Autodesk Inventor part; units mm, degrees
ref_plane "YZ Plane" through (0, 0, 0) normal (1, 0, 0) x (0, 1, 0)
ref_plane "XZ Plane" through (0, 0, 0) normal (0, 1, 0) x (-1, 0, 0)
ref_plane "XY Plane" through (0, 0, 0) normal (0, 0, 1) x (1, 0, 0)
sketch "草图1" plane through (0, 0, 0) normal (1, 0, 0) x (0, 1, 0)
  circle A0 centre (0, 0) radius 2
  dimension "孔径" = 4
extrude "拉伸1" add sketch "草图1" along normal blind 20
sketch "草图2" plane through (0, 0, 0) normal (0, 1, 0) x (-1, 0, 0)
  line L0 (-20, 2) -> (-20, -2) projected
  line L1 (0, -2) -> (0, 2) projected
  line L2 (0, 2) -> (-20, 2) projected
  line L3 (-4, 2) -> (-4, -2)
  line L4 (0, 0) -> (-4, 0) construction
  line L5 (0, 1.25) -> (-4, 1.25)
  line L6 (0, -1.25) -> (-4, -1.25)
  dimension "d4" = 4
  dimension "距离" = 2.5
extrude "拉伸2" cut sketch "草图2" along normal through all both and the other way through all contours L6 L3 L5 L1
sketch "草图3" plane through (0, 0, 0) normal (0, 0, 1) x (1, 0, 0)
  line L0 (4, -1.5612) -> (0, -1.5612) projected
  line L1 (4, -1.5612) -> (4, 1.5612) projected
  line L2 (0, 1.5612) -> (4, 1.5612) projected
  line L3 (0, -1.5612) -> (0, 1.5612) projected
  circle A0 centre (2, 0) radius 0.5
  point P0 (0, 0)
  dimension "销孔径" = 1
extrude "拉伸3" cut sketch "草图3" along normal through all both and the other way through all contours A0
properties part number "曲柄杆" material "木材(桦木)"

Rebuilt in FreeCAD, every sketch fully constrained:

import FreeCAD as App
import Part
import Sketcher

V = App.Vector
Q = App.Units.Quantity

doc = App.newDocument("Part")
body = doc.addObject("PartDesign::Body", "Body")

sketch1 = body.newObject("Sketcher::SketchObject", "Sketch")
sketch1.AttachmentSupport = (doc.getObject("YZ_Plane"), [""])
sketch1.MapMode = "FlatFace"
sketch1.addGeometry(Part.Circle(V(0, 0, 0), V(0, 0, 1), 2), False)
sketch1.addConstraint(Sketcher.Constraint("Coincident", 0, 3, -1, 1))
sketch1.addConstraint(Sketcher.Constraint("Diameter", 0, Q("4 mm")))
pad1 = body.newObject("PartDesign::Pad", "Pad")
pad1.Profile = sketch1
pad1.Length = 20

sketch2 = body.newObject("Sketcher::SketchObject", "Sketch001")
sketch2.AttachmentSupport = (doc.getObject("XZ_Plane"), [""])
sketch2.MapMode = "FlatFace"
sketch2.addGeometry(Part.LineSegment(V(4, -1.2, 0), V(0, -1.2, 0)), False)
sketch2.addGeometry(Part.LineSegment(V(0, -1.2, 0), V(0, 1.2, 0)), False)
sketch2.addGeometry(Part.LineSegment(V(0, 1.2, 0), V(4, 1.2, 0)), False)
sketch2.addGeometry(Part.LineSegment(V(4, 1.2, 0), V(4, -1.2, 0)), False)
sketch2.addConstraint(Sketcher.Constraint("Coincident", 0, 2, 1, 1))
sketch2.addConstraint(Sketcher.Constraint("Coincident", 1, 2, 2, 1))
sketch2.addConstraint(Sketcher.Constraint("Coincident", 2, 2, 3, 1))
sketch2.addConstraint(Sketcher.Constraint("Coincident", 3, 2, 0, 1))
sketch2.addConstraint(Sketcher.Constraint("Horizontal", 0))
sketch2.addConstraint(Sketcher.Constraint("Vertical", 1))
sketch2.addConstraint(Sketcher.Constraint("Horizontal", 2))
sketch2.addConstraint(Sketcher.Constraint("Vertical", 3))
sketch2.addConstraint(Sketcher.Constraint("Symmetric", 0, 2, 1, 2, -1, 1))
sketch2.addConstraint(Sketcher.Constraint("DistanceX", 0, 2, 0, 1, Q("4 mm")))
sketch2.addConstraint(Sketcher.Constraint("DistanceY", 1, 1, 1, 2, Q("2.5 mm")))
pocket1 = body.newObject("PartDesign::Pocket", "Pocket")
pocket1.Profile = sketch2
pocket1.Type = "ThroughAll"
pocket1.Midplane = True

sketch3 = body.newObject("Sketcher::SketchObject", "Sketch002")
sketch3.AttachmentSupport = (doc.getObject("XY_Plane"), [""])
sketch3.MapMode = "FlatFace"
sketch3.addGeometry(Part.Circle(V(2, 0, 0), V(0, 0, 1), 0.5), False)
sketch3.addConstraint(Sketcher.Constraint("PointOnObject", 0, 3, -1))
sketch3.addConstraint(Sketcher.Constraint("Diameter", 0, Q("1 mm")))
sketch3.addConstraint(Sketcher.Constraint("DistanceX", -1, 1, 0, 3, Q("2 mm")))
pocket2 = body.newObject("PartDesign::Pocket", "Pocket001")
pocket2.Profile = sketch3
pocket2.Type = "ThroughAll"
pocket2.Midplane = True

doc.recompute()
